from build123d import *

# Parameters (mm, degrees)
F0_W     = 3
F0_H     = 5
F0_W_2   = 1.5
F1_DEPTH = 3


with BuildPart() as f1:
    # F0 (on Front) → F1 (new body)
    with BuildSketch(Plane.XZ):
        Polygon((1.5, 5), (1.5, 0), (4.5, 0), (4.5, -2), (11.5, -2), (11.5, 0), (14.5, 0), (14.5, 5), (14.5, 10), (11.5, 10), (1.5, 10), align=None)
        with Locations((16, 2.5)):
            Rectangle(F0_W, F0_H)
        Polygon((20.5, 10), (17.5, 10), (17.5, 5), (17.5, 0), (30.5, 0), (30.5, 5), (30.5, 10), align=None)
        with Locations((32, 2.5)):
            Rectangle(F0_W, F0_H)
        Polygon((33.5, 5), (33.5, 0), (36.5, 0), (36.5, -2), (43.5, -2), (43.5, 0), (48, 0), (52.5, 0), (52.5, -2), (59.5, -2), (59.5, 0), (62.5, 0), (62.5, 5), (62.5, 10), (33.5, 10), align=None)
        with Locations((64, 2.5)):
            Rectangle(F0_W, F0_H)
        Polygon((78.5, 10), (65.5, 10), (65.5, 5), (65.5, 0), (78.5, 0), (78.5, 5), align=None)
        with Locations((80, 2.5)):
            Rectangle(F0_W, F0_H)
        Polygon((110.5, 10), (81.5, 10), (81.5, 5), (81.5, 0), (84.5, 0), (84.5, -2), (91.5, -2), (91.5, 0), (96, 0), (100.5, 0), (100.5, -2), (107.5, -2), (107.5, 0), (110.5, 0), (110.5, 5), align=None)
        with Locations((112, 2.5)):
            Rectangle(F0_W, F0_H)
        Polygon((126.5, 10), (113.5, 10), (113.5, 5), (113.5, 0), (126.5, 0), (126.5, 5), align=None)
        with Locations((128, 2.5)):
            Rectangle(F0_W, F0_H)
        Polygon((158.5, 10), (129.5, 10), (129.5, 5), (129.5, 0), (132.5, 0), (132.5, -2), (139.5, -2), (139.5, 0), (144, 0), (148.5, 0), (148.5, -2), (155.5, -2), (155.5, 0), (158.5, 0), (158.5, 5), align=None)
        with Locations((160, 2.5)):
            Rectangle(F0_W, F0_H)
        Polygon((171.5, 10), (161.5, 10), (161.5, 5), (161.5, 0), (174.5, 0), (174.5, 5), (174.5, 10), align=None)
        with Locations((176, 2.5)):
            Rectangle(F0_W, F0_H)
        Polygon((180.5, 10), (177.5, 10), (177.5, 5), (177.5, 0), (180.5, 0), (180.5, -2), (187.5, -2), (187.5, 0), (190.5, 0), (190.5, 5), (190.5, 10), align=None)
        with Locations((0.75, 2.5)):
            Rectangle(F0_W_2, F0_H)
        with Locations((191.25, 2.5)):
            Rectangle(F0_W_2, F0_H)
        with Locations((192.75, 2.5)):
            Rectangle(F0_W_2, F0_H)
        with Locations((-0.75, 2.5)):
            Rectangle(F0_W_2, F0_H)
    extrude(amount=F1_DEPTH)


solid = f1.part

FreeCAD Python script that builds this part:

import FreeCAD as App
import Part
import Sketcher
Q = App.Units.Quantity

doc = App.newDocument("Part")
body = doc.addObject("PartDesign::Body", "Body")

sketch1 = doc.addObject("Sketcher::SketchObject", "Sketch")
body.addObject(sketch1)
sketch1.AttachmentSupport = (doc.XZ_Plane, [""])
sketch1.MapMode = "FlatFace"
sketch1.addGeometry(Part.LineSegment(App.Vector(4.5, 0, 0), App.Vector(4.5, -2, 0)), False)
sketch1.addGeometry(Part.LineSegment(App.Vector(4.5, -2, 0), App.Vector(11.5, -2, 0)), False)
sketch1.addGeometry(Part.LineSegment(App.Vector(11.5, -2, 0), App.Vector(11.5, 0, 0)), False)
sketch1.addGeometry(Part.LineSegment(App.Vector(11.5, 0, 0), App.Vector(36.5, 0, 0)), False)
sketch1.addGeometry(Part.LineSegment(App.Vector(36.5, 0, 0), App.Vector(36.5, -2, 0)), False)
sketch1.addGeometry(Part.LineSegment(App.Vector(36.5, -2, 0), App.Vector(43.5, -2, 0)), False)
sketch1.addGeometry(Part.LineSegment(App.Vector(43.5, -2, 0), App.Vector(43.5, 0, 0)), False)
sketch1.addGeometry(Part.LineSegment(App.Vector(43.5, 0, 0), App.Vector(52.5, 0, 0)), False)
sketch1.addGeometry(Part.LineSegment(App.Vector(52.5, 0, 0), App.Vector(52.5, -2, 0)), False)
sketch1.addGeometry(Part.LineSegment(App.Vector(52.5, -2, 0), App.Vector(59.5, -2, 0)), False)
sketch1.addGeometry(Part.LineSegment(App.Vector(59.5, -2, 0), App.Vector(59.5, 0, 0)), False)
sketch1.addGeometry(Part.LineSegment(App.Vector(59.5, 0, 0), App.Vector(84.5, 0, 0)), False)
sketch1.addGeometry(Part.LineSegment(App.Vector(84.5, 0, 0), App.Vector(84.5, -2, 0)), False)
sketch1.addGeometry(Part.LineSegment(App.Vector(84.5, -2, 0), App.Vector(91.5, -2, 0)), False)
sketch1.addGeometry(Part.LineSegment(App.Vector(91.5, -2, 0), App.Vector(91.5, 0, 0)), False)
sketch1.addGeometry(Part.LineSegment(App.Vector(91.5, 0, 0), App.Vector(100.5, 0, 0)), False)
sketch1.addGeometry(Part.LineSegment(App.Vector(100.5, 0, 0), App.Vector(100.5, -2, 0)), False)
sketch1.addGeometry(Part.LineSegment(App.Vector(100.5, -2, 0), App.Vector(107.5, -2, 0)), False)
sketch1.addGeometry(Part.LineSegment(App.Vector(107.5, -2, 0), App.Vector(107.5, 0, 0)), False)
sketch1.addGeometry(Part.LineSegment(App.Vector(107.5, 0, 0), App.Vector(132.5, 0, 0)), False)
sketch1.addGeometry(Part.LineSegment(App.Vector(132.5, 0, 0), App.Vector(132.5, -2, 0)), False)
sketch1.addGeometry(Part.LineSegment(App.Vector(132.5, -2, 0), App.Vector(139.5, -2, 0)), False)
sketch1.addGeometry(Part.LineSegment(App.Vector(139.5, -2, 0), App.Vector(139.5, 0, 0)), False)
sketch1.addGeometry(Part.LineSegment(App.Vector(139.5, 0, 0), App.Vector(148.5, 0, 0)), False)
sketch1.addGeometry(Part.LineSegment(App.Vector(148.5, 0, 0), App.Vector(148.5, -2, 0)), False)
sketch1.addGeometry(Part.LineSegment(App.Vector(148.5, -2, 0), App.Vector(155.5, -2, 0)), False)
sketch1.addGeometry(Part.LineSegment(App.Vector(155.5, -2, 0), App.Vector(155.5, 0, 0)), False)
sketch1.addGeometry(Part.LineSegment(App.Vector(155.5, 0, 0), App.Vector(180.5, 0, 0)), False)
sketch1.addGeometry(Part.LineSegment(App.Vector(180.5, 0, 0), App.Vector(180.5, -2, 0)), False)
sketch1.addGeometry(Part.LineSegment(App.Vector(180.5, -2, 0), App.Vector(187.5, -2, 0)), False)
sketch1.addGeometry(Part.LineSegment(App.Vector(187.5, -2, 0), App.Vector(187.5, 0, 0)), False)
sketch1.addGeometry(Part.LineSegment(App.Vector(187.5, 0, 0), App.Vector(193.5, 0, 0)), False)
sketch1.addGeometry(Part.LineSegment(App.Vector(193.5, 0, 0), App.Vector(193.5, 5, 0)), False)
sketch1.addGeometry(Part.LineSegment(App.Vector(193.5, 5, 0), App.Vector(190.5, 5, 0)), False)
sketch1.addGeometry(Part.LineSegment(App.Vector(190.5, 5, 0), App.Vector(190.5, 10, 0)), False)
sketch1.addGeometry(Part.LineSegment(App.Vector(190.5, 10, 0), App.Vector(177.5, 10, 0)), False)
sketch1.addGeometry(Part.LineSegment(App.Vector(177.5, 10, 0), App.Vector(177.5, 5, 0)), False)
sketch1.addGeometry(Part.LineSegment(App.Vector(177.5, 5, 0), App.Vector(174.5, 5, 0)), False)
sketch1.addGeometry(Part.LineSegment(App.Vector(174.5, 5, 0), App.Vector(174.5, 10, 0)), False)
sketch1.addGeometry(Part.LineSegment(App.Vector(174.5, 10, 0), App.Vector(161.5, 10, 0)), False)
sketch1.addGeometry(Part.LineSegment(App.Vector(161.5, 10, 0), App.Vector(161.5, 5, 0)), False)
sketch1.addGeometry(Part.LineSegment(App.Vector(161.5, 5, 0), App.Vector(158.5, 5, 0)), False)
sketch1.addGeometry(Part.LineSegment(App.Vector(158.5, 5, 0), App.Vector(158.5, 10, 0)), False)
sketch1.addGeometry(Part.LineSegment(App.Vector(158.5, 10, 0), App.Vector(129.5, 10, 0)), False)
sketch1.addGeometry(Part.LineSegment(App.Vector(129.5, 10, 0), App.Vector(129.5, 5, 0)), False)
sketch1.addGeometry(Part.LineSegment(App.Vector(129.5, 5, 0), App.Vector(126.5, 5, 0)), False)
sketch1.addGeometry(Part.LineSegment(App.Vector(126.5, 5, 0), App.Vector(126.5, 10, 0)), False)
sketch1.addGeometry(Part.LineSegment(App.Vector(126.5, 10, 0), App.Vector(113.5, 10, 0)), False)
sketch1.addGeometry(Part.LineSegment(App.Vector(113.5, 10, 0), App.Vector(113.5, 5, 0)), False)
sketch1.addGeometry(Part.LineSegment(App.Vector(113.5, 5, 0), App.Vector(110.5, 5, 0)), False)
sketch1.addGeometry(Part.LineSegment(App.Vector(110.5, 5, 0), App.Vector(110.5, 10, 0)), False)
sketch1.addGeometry(Part.LineSegment(App.Vector(110.5, 10, 0), App.Vector(81.5, 10, 0)), False)
sketch1.addGeometry(Part.LineSegment(App.Vector(81.5, 10, 0), App.Vector(81.5, 5, 0)), False)
sketch1.addGeometry(Part.LineSegment(App.Vector(81.5, 5, 0), App.Vector(78.5, 5, 0)), False)
sketch1.addGeometry(Part.LineSegment(App.Vector(78.5, 5, 0), App.Vector(78.5, 10, 0)), False)
sketch1.addGeometry(Part.LineSegment(App.Vector(78.5, 10, 0), App.Vector(65.5, 10, 0)), False)
sketch1.addGeometry(Part.LineSegment(App.Vector(65.5, 10, 0), App.Vector(65.5, 5, 0)), False)
sketch1.addGeometry(Part.LineSegment(App.Vector(65.5, 5, 0), App.Vector(62.5, 5, 0)), False)
sketch1.addGeometry(Part.LineSegment(App.Vector(62.5, 5, 0), App.Vector(62.5, 10, 0)), False)
sketch1.addGeometry(Part.LineSegment(App.Vector(62.5, 10, 0), App.Vector(33.5, 10, 0)), False)
sketch1.addGeometry(Part.LineSegment(App.Vector(33.5, 10, 0), App.Vector(33.5, 5, 0)), False)
sketch1.addGeometry(Part.LineSegment(App.Vector(33.5, 5, 0), App.Vector(30.5, 5, 0)), False)
sketch1.addGeometry(Part.LineSegment(App.Vector(30.5, 5, 0), App.Vector(30.5, 10, 0)), False)
sketch1.addGeometry(Part.LineSegment(App.Vector(30.5, 10, 0), App.Vector(17.5, 10, 0)), False)
sketch1.addGeometry(Part.LineSegment(App.Vector(17.5, 10, 0), App.Vector(17.5, 5, 0)), False)
sketch1.addGeometry(Part.LineSegment(App.Vector(17.5, 5, 0), App.Vector(14.5, 5, 0)), False)
sketch1.addGeometry(Part.LineSegment(App.Vector(14.5, 5, 0), App.Vector(14.5, 10, 0)), False)
sketch1.addGeometry(Part.LineSegment(App.Vector(14.5, 10, 0), App.Vector(1.5, 10, 0)), False)
sketch1.addGeometry(Part.LineSegment(App.Vector(1.5, 10, 0), App.Vector(1.5, 5, 0)), False)
sketch1.addGeometry(Part.LineSegment(App.Vector(1.5, 5, 0), App.Vector(-1.5, 5, 0)), False)
sketch1.addGeometry(Part.LineSegment(App.Vector(-1.5, 5, 0), App.Vector(-1.5, 0, 0)), False)
sketch1.addGeometry(Part.LineSegment(App.Vector(-1.5, 0, 0), App.Vector(4.5, 0, 0)), False)
sketch1.addConstraint(Sketcher.Constraint("Coincident", 0, 2, 1, 1))
sketch1.addConstraint(Sketcher.Constraint("Coincident", 1, 2, 2, 1))
sketch1.addConstraint(Sketcher.Constraint("Coincident", 2, 2, 3, 1))
sketch1.addConstraint(Sketcher.Constraint("Coincident", 3, 2, 4, 1))
sketch1.addConstraint(Sketcher.Constraint("Coincident", 4, 2, 5, 1))
sketch1.addConstraint(Sketcher.Constraint("Coincident", 5, 2, 6, 1))
sketch1.addConstraint(Sketcher.Constraint("Coincident", 6, 2, 7, 1))
sketch1.addConstraint(Sketcher.Constraint("Coincident", 7, 2, 8, 1))
sketch1.addConstraint(Sketcher.Constraint("Coincident", 8, 2, 9, 1))
sketch1.addConstraint(Sketcher.Constraint("Coincident", 9, 2, 10, 1))
sketch1.addConstraint(Sketcher.Constraint("Coincident", 10, 2, 11, 1))
sketch1.addConstraint(Sketcher.Constraint("Coincident", 11, 2, 12, 1))
sketch1.addConstraint(Sketcher.Constraint("Coincident", 12, 2, 13, 1))
sketch1.addConstraint(Sketcher.Constraint("Coincident", 13, 2, 14, 1))
sketch1.addConstraint(Sketcher.Constraint("Coincident", 14, 2, 15, 1))
sketch1.addConstraint(Sketcher.Constraint("Coincident", 15, 2, 16, 1))
sketch1.addConstraint(Sketcher.Constraint("Coincident", 16, 2, 17, 1))
sketch1.addConstraint(Sketcher.Constraint("Coincident", 17, 2, 18, 1))
sketch1.addConstraint(Sketcher.Constraint("Coincident", 18, 2, 19, 1))
sketch1.addConstraint(Sketcher.Constraint("Coincident", 19, 2, 20, 1))
sketch1.addConstraint(Sketcher.Constraint("Coincident", 20, 2, 21, 1))
sketch1.addConstraint(Sketcher.Constraint("Coincident", 21, 2, 22, 1))
sketch1.addConstraint(Sketcher.Constraint("Coincident", 22, 2, 23, 1))
sketch1.addConstraint(Sketcher.Constraint("Coincident", 23, 2, 24, 1))
sketch1.addConstraint(Sketcher.Constraint("Coincident", 24, 2, 25, 1))
sketch1.addConstraint(Sketcher.Constraint("Coincident", 25, 2, 26, 1))
sketch1.addConstraint(Sketcher.Constraint("Coincident", 26, 2, 27, 1))
sketch1.addConstraint(Sketcher.Constraint("Coincident", 27, 2, 28, 1))
sketch1.addConstraint(Sketcher.Constraint("Coincident", 28, 2, 29, 1))
sketch1.addConstraint(Sketcher.Constraint("Coincident", 29, 2, 30, 1))
sketch1.addConstraint(Sketcher.Constraint("Coincident", 30, 2, 31, 1))
sketch1.addConstraint(Sketcher.Constraint("Coincident", 31, 2, 32, 1))
sketch1.addConstraint(Sketcher.Constraint("Coincident", 32, 2, 33, 1))
sketch1.addConstraint(Sketcher.Constraint("Coincident", 33, 2, 34, 1))
sketch1.addConstraint(Sketcher.Constraint("Coincident", 34, 2, 35, 1))
sketch1.addConstraint(Sketcher.Constraint("Coincident", 35, 2, 36, 1))
sketch1.addConstraint(Sketcher.Constraint("Coincident", 36, 2, 37, 1))
sketch1.addConstraint(Sketcher.Constraint("Coincident", 37, 2, 38, 1))
sketch1.addConstraint(Sketcher.Constraint("Coincident", 38, 2, 39, 1))
sketch1.addConstraint(Sketcher.Constraint("Coincident", 39, 2, 40, 1))
sketch1.addConstraint(Sketcher.Constraint("Coincident", 40, 2, 41, 1))
sketch1.addConstraint(Sketcher.Constraint("Coincident", 41, 2, 42, 1))
sketch1.addConstraint(Sketcher.Constraint("Coincident", 42, 2, 43, 1))
sketch1.addConstraint(Sketcher.Constraint("Coincident", 43, 2, 44, 1))
sketch1.addConstraint(Sketcher.Constraint("Coincident", 44, 2, 45, 1))
sketch1.addConstraint(Sketcher.Constraint("Coincident", 45, 2, 46, 1))
sketch1.addConstraint(Sketcher.Constraint("Coincident", 46, 2, 47, 1))
sketch1.addConstraint(Sketcher.Constraint("Coincident", 47, 2, 48, 1))
sketch1.addConstraint(Sketcher.Constraint("Coincident", 48, 2, 49, 1))
sketch1.addConstraint(Sketcher.Constraint("Coincident", 49, 2, 50, 1))
sketch1.addConstraint(Sketcher.Constraint("Coincident", 50, 2, 51, 1))
sketch1.addConstraint(Sketcher.Constraint("Coincident", 51, 2, 52, 1))
sketch1.addConstraint(Sketcher.Constraint("Coincident", 52, 2, 53, 1))
sketch1.addConstraint(Sketcher.Constraint("Coincident", 53, 2, 54, 1))
sketch1.addConstraint(Sketcher.Constraint("Coincident", 54, 2, 55, 1))
sketch1.addConstraint(Sketcher.Constraint("Coincident", 55, 2, 56, 1))
sketch1.addConstraint(Sketcher.Constraint("Coincident", 56, 2, 57, 1))
sketch1.addConstraint(Sketcher.Constraint("Coincident", 57, 2, 58, 1))
sketch1.addConstraint(Sketcher.Constraint("Coincident", 58, 2, 59, 1))
sketch1.addConstraint(Sketcher.Constraint("Coincident", 59, 2, 60, 1))
sketch1.addConstraint(Sketcher.Constraint("Coincident", 60, 2, 61, 1))
sketch1.addConstraint(Sketcher.Constraint("Coincident", 61, 2, 62, 1))
sketch1.addConstraint(Sketcher.Constraint("Coincident", 62, 2, 63, 1))
sketch1.addConstraint(Sketcher.Constraint("Coincident", 63, 2, 64, 1))
sketch1.addConstraint(Sketcher.Constraint("Coincident", 64, 2, 65, 1))
sketch1.addConstraint(Sketcher.Constraint("Coincident", 65, 2, 66, 1))
sketch1.addConstraint(Sketcher.Constraint("Coincident", 66, 2, 67, 1))
sketch1.addConstraint(Sketcher.Constraint("Coincident", 67, 2, 68, 1))
sketch1.addConstraint(Sketcher.Constraint("Coincident", 68, 2, 69, 1))
sketch1.addConstraint(Sketcher.Constraint("Coincident", 69, 2, 70, 1))
sketch1.addConstraint(Sketcher.Constraint("Coincident", 70, 2, 71, 1))
sketch1.addConstraint(Sketcher.Constraint("Coincident", 71, 2, 0, 1))
sketch1.addConstraint(Sketcher.Constraint("Vertical", 0))
sketch1.addConstraint(Sketcher.Constraint("Horizontal", 1))
sketch1.addConstraint(Sketcher.Constraint("Vertical", 2))
sketch1.addConstraint(Sketcher.Constraint("Horizontal", 3))
sketch1.addConstraint(Sketcher.Constraint("Vertical", 4))
sketch1.addConstraint(Sketcher.Constraint("Horizontal", 5))
sketch1.addConstraint(Sketcher.Constraint("Vertical", 6))
sketch1.addConstraint(Sketcher.Constraint("Horizontal", 7))
sketch1.addConstraint(Sketcher.Constraint("Vertical", 8))
sketch1.addConstraint(Sketcher.Constraint("Horizontal", 9))
sketch1.addConstraint(Sketcher.Constraint("Vertical", 10))
sketch1.addConstraint(Sketcher.Constraint("Horizontal", 11))
sketch1.addConstraint(Sketcher.Constraint("Vertical", 12))
sketch1.addConstraint(Sketcher.Constraint("Horizontal", 13))
sketch1.addConstraint(Sketcher.Constraint("Vertical", 14))
sketch1.addConstraint(Sketcher.Constraint("Horizontal", 15))
sketch1.addConstraint(Sketcher.Constraint("Vertical", 16))
sketch1.addConstraint(Sketcher.Constraint("Horizontal", 17))
sketch1.addConstraint(Sketcher.Constraint("Vertical", 18))
sketch1.addConstraint(Sketcher.Constraint("Horizontal", 19))
sketch1.addConstraint(Sketcher.Constraint("Vertical", 20))
sketch1.addConstraint(Sketcher.Constraint("Horizontal", 21))
sketch1.addConstraint(Sketcher.Constraint("Vertical", 22))
sketch1.addConstraint(Sketcher.Constraint("Horizontal", 23))
sketch1.addConstraint(Sketcher.Constraint("Vertical", 24))
sketch1.addConstraint(Sketcher.Constraint("Horizontal", 25))
sketch1.addConstraint(Sketcher.Constraint("Vertical", 26))
sketch1.addConstraint(Sketcher.Constraint("Horizontal", 27))
sketch1.addConstraint(Sketcher.Constraint("Vertical", 28))
sketch1.addConstraint(Sketcher.Constraint("Horizontal", 29))
sketch1.addConstraint(Sketcher.Constraint("Vertical", 30))
sketch1.addConstraint(Sketcher.Constraint("Horizontal", 31))
sketch1.addConstraint(Sketcher.Constraint("Vertical", 32))
sketch1.addConstraint(Sketcher.Constraint("Horizontal", 33))
sketch1.addConstraint(Sketcher.Constraint("Vertical", 34))
sketch1.addConstraint(Sketcher.Constraint("Horizontal", 35))
sketch1.addConstraint(Sketcher.Constraint("Vertical", 36))
sketch1.addConstraint(Sketcher.Constraint("Horizontal", 37))
sketch1.addConstraint(Sketcher.Constraint("Vertical", 38))
sketch1.addConstraint(Sketcher.Constraint("Horizontal", 39))
sketch1.addConstraint(Sketcher.Constraint("Vertical", 40))
sketch1.addConstraint(Sketcher.Constraint("Horizontal", 41))
sketch1.addConstraint(Sketcher.Constraint("Vertical", 42))
sketch1.addConstraint(Sketcher.Constraint("Horizontal", 43))
sketch1.addConstraint(Sketcher.Constraint("Vertical", 44))
sketch1.addConstraint(Sketcher.Constraint("Horizontal", 45))
sketch1.addConstraint(Sketcher.Constraint("Vertical", 46))
sketch1.addConstraint(Sketcher.Constraint("Horizontal", 47))
sketch1.addConstraint(Sketcher.Constraint("Vertical", 48))
sketch1.addConstraint(Sketcher.Constraint("Horizontal", 49))
sketch1.addConstraint(Sketcher.Constraint("Vertical", 50))
sketch1.addConstraint(Sketcher.Constraint("Horizontal", 51))
sketch1.addConstraint(Sketcher.Constraint("Vertical", 52))
sketch1.addConstraint(Sketcher.Constraint("Horizontal", 53))
sketch1.addConstraint(Sketcher.Constraint("Vertical", 54))
sketch1.addConstraint(Sketcher.Constraint("Horizontal", 55))
sketch1.addConstraint(Sketcher.Constraint("Vertical", 56))
sketch1.addConstraint(Sketcher.Constraint("Horizontal", 57))
sketch1.addConstraint(Sketcher.Constraint("Vertical", 58))
sketch1.addConstraint(Sketcher.Constraint("Horizontal", 59))
sketch1.addConstraint(Sketcher.Constraint("Vertical", 60))
sketch1.addConstraint(Sketcher.Constraint("Horizontal", 61))
sketch1.addConstraint(Sketcher.Constraint("Vertical", 62))
sketch1.addConstraint(Sketcher.Constraint("Horizontal", 63))
sketch1.addConstraint(Sketcher.Constraint("Vertical", 64))
sketch1.addConstraint(Sketcher.Constraint("Horizontal", 65))
sketch1.addConstraint(Sketcher.Constraint("Vertical", 66))
sketch1.addConstraint(Sketcher.Constraint("Horizontal", 67))
sketch1.addConstraint(Sketcher.Constraint("Vertical", 68))
sketch1.addConstraint(Sketcher.Constraint("Horizontal", 69))
sketch1.addConstraint(Sketcher.Constraint("Vertical", 70))
sketch1.addConstraint(Sketcher.Constraint("Horizontal", 71))
sketch1.addConstraint(Sketcher.Constraint("PointOnObject", 2, 2, -1))
sketch1.addConstraint(Sketcher.Constraint("PointOnObject", 6, 2, -1))
sketch1.addConstraint(Sketcher.Constraint("PointOnObject", 10, 2, -1))
sketch1.addConstraint(Sketcher.Constraint("PointOnObject", 14, 2, -1))
sketch1.addConstraint(Sketcher.Constraint("PointOnObject", 18, 2, -1))
sketch1.addConstraint(Sketcher.Constraint("PointOnObject", 22, 2, -1))
sketch1.addConstraint(Sketcher.Constraint("PointOnObject", 26, 2, -1))
sketch1.addConstraint(Sketcher.Constraint("PointOnObject", 30, 2, -1))
sketch1.addConstraint(Sketcher.Constraint("PointOnObject", 70, 2, -1))
sketch1.addConstraint(Sketcher.Constraint("Horizontal", 1, 2, 4, 2))
sketch1.addConstraint(Sketcher.Constraint("Horizontal", 5, 2, 8, 2))
sketch1.addConstraint(Sketcher.Constraint("Horizontal", 9, 2, 12, 2))
sketch1.addConstraint(Sketcher.Constraint("Horizontal", 13, 2, 16, 2))
sketch1.addConstraint(Sketcher.Constraint("Horizontal", 17, 2, 20, 2))
sketch1.addConstraint(Sketcher.Constraint("Horizontal", 21, 2, 24, 2))
sketch1.addConstraint(Sketcher.Constraint("Horizontal", 25, 2, 28, 2))
sketch1.addConstraint(Sketcher.Constraint("Horizontal", 33, 2, 36, 2))
sketch1.addConstraint(Sketcher.Constraint("Horizontal", 35, 2, 38, 2))
sketch1.addConstraint(Sketcher.Constraint("Horizontal", 37, 2, 40, 2))
sketch1.addConstraint(Sketcher.Constraint("Horizontal", 39, 2, 42, 2))
sketch1.addConstraint(Sketcher.Constraint("Horizontal", 41, 2, 44, 2))
sketch1.addConstraint(Sketcher.Constraint("Horizontal", 43, 2, 46, 2))
sketch1.addConstraint(Sketcher.Constraint("Horizontal", 45, 2, 48, 2))
sketch1.addConstraint(Sketcher.Constraint("Horizontal", 47, 2, 50, 2))
sketch1.addConstraint(Sketcher.Constraint("Horizontal", 49, 2, 52, 2))
sketch1.addConstraint(Sketcher.Constraint("Horizontal", 51, 2, 54, 2))
sketch1.addConstraint(Sketcher.Constraint("Horizontal", 53, 2, 56, 2))
sketch1.addConstraint(Sketcher.Constraint("Horizontal", 55, 2, 58, 2))
sketch1.addConstraint(Sketcher.Constraint("Horizontal", 57, 2, 60, 2))
sketch1.addConstraint(Sketcher.Constraint("Horizontal", 59, 2, 62, 2))
sketch1.addConstraint(Sketcher.Constraint("Horizontal", 61, 2, 64, 2))
sketch1.addConstraint(Sketcher.Constraint("Horizontal", 63, 2, 66, 2))
sketch1.addConstraint(Sketcher.Constraint("Horizontal", 65, 2, 68, 2))
sketch1.addConstraint(Sketcher.Constraint("Equal", 1, 5))
sketch1.addConstraint(Sketcher.Constraint("Equal", 5, 9))
sketch1.addConstraint(Sketcher.Constraint("Equal", 3, 11))
sketch1.addConstraint(Sketcher.Constraint("Equal", 9, 13))
sketch1.addConstraint(Sketcher.Constraint("Equal", 7, 15))
sketch1.addConstraint(Sketcher.Constraint("Equal", 13, 17))
sketch1.addConstraint(Sketcher.Constraint("Equal", 11, 19))
sketch1.addConstraint(Sketcher.Constraint("Equal", 17, 21))
sketch1.addConstraint(Sketcher.Constraint("Equal", 15, 23))
sketch1.addConstraint(Sketcher.Constraint("Equal", 21, 25))
sketch1.addConstraint(Sketcher.Constraint("Equal", 19, 27))
sketch1.addConstraint(Sketcher.Constraint("Equal", 25, 29))
sketch1.addConstraint(Sketcher.Constraint("Equal", 33, 37))
sketch1.addConstraint(Sketcher.Constraint("Equal", 35, 39))
sketch1.addConstraint(Sketcher.Constraint("Equal", 37, 41))
sketch1.addConstraint(Sketcher.Constraint("Equal", 41, 45))
sketch1.addConstraint(Sketcher.Constraint("Equal", 39, 47))
sketch1.addConstraint(Sketcher.Constraint("Equal", 45, 49))
sketch1.addConstraint(Sketcher.Constraint("Equal", 43, 51))
sketch1.addConstraint(Sketcher.Constraint("Equal", 49, 53))
sketch1.addConstraint(Sketcher.Constraint("Equal", 47, 55))
sketch1.addConstraint(Sketcher.Constraint("Equal", 53, 57))
sketch1.addConstraint(Sketcher.Constraint("Equal", 51, 59))
sketch1.addConstraint(Sketcher.Constraint("Equal", 57, 61))
sketch1.addConstraint(Sketcher.Constraint("Equal", 55, 63))
sketch1.addConstraint(Sketcher.Constraint("Equal", 61, 65))
sketch1.addConstraint(Sketcher.Constraint("Equal", 63, 67))
sketch1.addConstraint(Sketcher.Constraint("Equal", 65, 69))
sketch1.addConstraint(Sketcher.Constraint("Equal", 31, 71))
sketch1.addConstraint(Sketcher.Constraint("Equal", 32, 34))
sketch1.addConstraint(Sketcher.Constraint("DistanceX", 1, 1, 1, 2, Q("7 mm")))
sketch1.addConstraint(Sketcher.Constraint("DistanceX", 3, 1, 3, 2, Q("25 mm")))
sketch1.addConstraint(Sketcher.Constraint("DistanceX", 7, 1, 7, 2, Q("9 mm")))
sketch1.addConstraint(Sketcher.Constraint("DistanceX", 31, 1, 31, 2, Q("6 mm")))
sketch1.addConstraint(Sketcher.Constraint("DistanceX", 33, 2, 33, 1, Q("3 mm")))
sketch1.addConstraint(Sketcher.Constraint("DistanceX", 35, 2, 35, 1, Q("13 mm")))
sketch1.addConstraint(Sketcher.Constraint("DistanceY", 0, 2, 0, 1, Q("2 mm")))
sketch1.addConstraint(Sketcher.Constraint("DistanceY", 32, 1, 32, 2, Q("5 mm")))
sketch1.addConstraint(Sketcher.Constraint("DistanceX", -1, 1, 0, 2, Q("4.5 mm")))
pad1 = doc.addObject("PartDesign::Pad", "Pad")
body.addObject(pad1)
pad1.Profile = sketch1
pad1.Length = 3

doc.recompute()
